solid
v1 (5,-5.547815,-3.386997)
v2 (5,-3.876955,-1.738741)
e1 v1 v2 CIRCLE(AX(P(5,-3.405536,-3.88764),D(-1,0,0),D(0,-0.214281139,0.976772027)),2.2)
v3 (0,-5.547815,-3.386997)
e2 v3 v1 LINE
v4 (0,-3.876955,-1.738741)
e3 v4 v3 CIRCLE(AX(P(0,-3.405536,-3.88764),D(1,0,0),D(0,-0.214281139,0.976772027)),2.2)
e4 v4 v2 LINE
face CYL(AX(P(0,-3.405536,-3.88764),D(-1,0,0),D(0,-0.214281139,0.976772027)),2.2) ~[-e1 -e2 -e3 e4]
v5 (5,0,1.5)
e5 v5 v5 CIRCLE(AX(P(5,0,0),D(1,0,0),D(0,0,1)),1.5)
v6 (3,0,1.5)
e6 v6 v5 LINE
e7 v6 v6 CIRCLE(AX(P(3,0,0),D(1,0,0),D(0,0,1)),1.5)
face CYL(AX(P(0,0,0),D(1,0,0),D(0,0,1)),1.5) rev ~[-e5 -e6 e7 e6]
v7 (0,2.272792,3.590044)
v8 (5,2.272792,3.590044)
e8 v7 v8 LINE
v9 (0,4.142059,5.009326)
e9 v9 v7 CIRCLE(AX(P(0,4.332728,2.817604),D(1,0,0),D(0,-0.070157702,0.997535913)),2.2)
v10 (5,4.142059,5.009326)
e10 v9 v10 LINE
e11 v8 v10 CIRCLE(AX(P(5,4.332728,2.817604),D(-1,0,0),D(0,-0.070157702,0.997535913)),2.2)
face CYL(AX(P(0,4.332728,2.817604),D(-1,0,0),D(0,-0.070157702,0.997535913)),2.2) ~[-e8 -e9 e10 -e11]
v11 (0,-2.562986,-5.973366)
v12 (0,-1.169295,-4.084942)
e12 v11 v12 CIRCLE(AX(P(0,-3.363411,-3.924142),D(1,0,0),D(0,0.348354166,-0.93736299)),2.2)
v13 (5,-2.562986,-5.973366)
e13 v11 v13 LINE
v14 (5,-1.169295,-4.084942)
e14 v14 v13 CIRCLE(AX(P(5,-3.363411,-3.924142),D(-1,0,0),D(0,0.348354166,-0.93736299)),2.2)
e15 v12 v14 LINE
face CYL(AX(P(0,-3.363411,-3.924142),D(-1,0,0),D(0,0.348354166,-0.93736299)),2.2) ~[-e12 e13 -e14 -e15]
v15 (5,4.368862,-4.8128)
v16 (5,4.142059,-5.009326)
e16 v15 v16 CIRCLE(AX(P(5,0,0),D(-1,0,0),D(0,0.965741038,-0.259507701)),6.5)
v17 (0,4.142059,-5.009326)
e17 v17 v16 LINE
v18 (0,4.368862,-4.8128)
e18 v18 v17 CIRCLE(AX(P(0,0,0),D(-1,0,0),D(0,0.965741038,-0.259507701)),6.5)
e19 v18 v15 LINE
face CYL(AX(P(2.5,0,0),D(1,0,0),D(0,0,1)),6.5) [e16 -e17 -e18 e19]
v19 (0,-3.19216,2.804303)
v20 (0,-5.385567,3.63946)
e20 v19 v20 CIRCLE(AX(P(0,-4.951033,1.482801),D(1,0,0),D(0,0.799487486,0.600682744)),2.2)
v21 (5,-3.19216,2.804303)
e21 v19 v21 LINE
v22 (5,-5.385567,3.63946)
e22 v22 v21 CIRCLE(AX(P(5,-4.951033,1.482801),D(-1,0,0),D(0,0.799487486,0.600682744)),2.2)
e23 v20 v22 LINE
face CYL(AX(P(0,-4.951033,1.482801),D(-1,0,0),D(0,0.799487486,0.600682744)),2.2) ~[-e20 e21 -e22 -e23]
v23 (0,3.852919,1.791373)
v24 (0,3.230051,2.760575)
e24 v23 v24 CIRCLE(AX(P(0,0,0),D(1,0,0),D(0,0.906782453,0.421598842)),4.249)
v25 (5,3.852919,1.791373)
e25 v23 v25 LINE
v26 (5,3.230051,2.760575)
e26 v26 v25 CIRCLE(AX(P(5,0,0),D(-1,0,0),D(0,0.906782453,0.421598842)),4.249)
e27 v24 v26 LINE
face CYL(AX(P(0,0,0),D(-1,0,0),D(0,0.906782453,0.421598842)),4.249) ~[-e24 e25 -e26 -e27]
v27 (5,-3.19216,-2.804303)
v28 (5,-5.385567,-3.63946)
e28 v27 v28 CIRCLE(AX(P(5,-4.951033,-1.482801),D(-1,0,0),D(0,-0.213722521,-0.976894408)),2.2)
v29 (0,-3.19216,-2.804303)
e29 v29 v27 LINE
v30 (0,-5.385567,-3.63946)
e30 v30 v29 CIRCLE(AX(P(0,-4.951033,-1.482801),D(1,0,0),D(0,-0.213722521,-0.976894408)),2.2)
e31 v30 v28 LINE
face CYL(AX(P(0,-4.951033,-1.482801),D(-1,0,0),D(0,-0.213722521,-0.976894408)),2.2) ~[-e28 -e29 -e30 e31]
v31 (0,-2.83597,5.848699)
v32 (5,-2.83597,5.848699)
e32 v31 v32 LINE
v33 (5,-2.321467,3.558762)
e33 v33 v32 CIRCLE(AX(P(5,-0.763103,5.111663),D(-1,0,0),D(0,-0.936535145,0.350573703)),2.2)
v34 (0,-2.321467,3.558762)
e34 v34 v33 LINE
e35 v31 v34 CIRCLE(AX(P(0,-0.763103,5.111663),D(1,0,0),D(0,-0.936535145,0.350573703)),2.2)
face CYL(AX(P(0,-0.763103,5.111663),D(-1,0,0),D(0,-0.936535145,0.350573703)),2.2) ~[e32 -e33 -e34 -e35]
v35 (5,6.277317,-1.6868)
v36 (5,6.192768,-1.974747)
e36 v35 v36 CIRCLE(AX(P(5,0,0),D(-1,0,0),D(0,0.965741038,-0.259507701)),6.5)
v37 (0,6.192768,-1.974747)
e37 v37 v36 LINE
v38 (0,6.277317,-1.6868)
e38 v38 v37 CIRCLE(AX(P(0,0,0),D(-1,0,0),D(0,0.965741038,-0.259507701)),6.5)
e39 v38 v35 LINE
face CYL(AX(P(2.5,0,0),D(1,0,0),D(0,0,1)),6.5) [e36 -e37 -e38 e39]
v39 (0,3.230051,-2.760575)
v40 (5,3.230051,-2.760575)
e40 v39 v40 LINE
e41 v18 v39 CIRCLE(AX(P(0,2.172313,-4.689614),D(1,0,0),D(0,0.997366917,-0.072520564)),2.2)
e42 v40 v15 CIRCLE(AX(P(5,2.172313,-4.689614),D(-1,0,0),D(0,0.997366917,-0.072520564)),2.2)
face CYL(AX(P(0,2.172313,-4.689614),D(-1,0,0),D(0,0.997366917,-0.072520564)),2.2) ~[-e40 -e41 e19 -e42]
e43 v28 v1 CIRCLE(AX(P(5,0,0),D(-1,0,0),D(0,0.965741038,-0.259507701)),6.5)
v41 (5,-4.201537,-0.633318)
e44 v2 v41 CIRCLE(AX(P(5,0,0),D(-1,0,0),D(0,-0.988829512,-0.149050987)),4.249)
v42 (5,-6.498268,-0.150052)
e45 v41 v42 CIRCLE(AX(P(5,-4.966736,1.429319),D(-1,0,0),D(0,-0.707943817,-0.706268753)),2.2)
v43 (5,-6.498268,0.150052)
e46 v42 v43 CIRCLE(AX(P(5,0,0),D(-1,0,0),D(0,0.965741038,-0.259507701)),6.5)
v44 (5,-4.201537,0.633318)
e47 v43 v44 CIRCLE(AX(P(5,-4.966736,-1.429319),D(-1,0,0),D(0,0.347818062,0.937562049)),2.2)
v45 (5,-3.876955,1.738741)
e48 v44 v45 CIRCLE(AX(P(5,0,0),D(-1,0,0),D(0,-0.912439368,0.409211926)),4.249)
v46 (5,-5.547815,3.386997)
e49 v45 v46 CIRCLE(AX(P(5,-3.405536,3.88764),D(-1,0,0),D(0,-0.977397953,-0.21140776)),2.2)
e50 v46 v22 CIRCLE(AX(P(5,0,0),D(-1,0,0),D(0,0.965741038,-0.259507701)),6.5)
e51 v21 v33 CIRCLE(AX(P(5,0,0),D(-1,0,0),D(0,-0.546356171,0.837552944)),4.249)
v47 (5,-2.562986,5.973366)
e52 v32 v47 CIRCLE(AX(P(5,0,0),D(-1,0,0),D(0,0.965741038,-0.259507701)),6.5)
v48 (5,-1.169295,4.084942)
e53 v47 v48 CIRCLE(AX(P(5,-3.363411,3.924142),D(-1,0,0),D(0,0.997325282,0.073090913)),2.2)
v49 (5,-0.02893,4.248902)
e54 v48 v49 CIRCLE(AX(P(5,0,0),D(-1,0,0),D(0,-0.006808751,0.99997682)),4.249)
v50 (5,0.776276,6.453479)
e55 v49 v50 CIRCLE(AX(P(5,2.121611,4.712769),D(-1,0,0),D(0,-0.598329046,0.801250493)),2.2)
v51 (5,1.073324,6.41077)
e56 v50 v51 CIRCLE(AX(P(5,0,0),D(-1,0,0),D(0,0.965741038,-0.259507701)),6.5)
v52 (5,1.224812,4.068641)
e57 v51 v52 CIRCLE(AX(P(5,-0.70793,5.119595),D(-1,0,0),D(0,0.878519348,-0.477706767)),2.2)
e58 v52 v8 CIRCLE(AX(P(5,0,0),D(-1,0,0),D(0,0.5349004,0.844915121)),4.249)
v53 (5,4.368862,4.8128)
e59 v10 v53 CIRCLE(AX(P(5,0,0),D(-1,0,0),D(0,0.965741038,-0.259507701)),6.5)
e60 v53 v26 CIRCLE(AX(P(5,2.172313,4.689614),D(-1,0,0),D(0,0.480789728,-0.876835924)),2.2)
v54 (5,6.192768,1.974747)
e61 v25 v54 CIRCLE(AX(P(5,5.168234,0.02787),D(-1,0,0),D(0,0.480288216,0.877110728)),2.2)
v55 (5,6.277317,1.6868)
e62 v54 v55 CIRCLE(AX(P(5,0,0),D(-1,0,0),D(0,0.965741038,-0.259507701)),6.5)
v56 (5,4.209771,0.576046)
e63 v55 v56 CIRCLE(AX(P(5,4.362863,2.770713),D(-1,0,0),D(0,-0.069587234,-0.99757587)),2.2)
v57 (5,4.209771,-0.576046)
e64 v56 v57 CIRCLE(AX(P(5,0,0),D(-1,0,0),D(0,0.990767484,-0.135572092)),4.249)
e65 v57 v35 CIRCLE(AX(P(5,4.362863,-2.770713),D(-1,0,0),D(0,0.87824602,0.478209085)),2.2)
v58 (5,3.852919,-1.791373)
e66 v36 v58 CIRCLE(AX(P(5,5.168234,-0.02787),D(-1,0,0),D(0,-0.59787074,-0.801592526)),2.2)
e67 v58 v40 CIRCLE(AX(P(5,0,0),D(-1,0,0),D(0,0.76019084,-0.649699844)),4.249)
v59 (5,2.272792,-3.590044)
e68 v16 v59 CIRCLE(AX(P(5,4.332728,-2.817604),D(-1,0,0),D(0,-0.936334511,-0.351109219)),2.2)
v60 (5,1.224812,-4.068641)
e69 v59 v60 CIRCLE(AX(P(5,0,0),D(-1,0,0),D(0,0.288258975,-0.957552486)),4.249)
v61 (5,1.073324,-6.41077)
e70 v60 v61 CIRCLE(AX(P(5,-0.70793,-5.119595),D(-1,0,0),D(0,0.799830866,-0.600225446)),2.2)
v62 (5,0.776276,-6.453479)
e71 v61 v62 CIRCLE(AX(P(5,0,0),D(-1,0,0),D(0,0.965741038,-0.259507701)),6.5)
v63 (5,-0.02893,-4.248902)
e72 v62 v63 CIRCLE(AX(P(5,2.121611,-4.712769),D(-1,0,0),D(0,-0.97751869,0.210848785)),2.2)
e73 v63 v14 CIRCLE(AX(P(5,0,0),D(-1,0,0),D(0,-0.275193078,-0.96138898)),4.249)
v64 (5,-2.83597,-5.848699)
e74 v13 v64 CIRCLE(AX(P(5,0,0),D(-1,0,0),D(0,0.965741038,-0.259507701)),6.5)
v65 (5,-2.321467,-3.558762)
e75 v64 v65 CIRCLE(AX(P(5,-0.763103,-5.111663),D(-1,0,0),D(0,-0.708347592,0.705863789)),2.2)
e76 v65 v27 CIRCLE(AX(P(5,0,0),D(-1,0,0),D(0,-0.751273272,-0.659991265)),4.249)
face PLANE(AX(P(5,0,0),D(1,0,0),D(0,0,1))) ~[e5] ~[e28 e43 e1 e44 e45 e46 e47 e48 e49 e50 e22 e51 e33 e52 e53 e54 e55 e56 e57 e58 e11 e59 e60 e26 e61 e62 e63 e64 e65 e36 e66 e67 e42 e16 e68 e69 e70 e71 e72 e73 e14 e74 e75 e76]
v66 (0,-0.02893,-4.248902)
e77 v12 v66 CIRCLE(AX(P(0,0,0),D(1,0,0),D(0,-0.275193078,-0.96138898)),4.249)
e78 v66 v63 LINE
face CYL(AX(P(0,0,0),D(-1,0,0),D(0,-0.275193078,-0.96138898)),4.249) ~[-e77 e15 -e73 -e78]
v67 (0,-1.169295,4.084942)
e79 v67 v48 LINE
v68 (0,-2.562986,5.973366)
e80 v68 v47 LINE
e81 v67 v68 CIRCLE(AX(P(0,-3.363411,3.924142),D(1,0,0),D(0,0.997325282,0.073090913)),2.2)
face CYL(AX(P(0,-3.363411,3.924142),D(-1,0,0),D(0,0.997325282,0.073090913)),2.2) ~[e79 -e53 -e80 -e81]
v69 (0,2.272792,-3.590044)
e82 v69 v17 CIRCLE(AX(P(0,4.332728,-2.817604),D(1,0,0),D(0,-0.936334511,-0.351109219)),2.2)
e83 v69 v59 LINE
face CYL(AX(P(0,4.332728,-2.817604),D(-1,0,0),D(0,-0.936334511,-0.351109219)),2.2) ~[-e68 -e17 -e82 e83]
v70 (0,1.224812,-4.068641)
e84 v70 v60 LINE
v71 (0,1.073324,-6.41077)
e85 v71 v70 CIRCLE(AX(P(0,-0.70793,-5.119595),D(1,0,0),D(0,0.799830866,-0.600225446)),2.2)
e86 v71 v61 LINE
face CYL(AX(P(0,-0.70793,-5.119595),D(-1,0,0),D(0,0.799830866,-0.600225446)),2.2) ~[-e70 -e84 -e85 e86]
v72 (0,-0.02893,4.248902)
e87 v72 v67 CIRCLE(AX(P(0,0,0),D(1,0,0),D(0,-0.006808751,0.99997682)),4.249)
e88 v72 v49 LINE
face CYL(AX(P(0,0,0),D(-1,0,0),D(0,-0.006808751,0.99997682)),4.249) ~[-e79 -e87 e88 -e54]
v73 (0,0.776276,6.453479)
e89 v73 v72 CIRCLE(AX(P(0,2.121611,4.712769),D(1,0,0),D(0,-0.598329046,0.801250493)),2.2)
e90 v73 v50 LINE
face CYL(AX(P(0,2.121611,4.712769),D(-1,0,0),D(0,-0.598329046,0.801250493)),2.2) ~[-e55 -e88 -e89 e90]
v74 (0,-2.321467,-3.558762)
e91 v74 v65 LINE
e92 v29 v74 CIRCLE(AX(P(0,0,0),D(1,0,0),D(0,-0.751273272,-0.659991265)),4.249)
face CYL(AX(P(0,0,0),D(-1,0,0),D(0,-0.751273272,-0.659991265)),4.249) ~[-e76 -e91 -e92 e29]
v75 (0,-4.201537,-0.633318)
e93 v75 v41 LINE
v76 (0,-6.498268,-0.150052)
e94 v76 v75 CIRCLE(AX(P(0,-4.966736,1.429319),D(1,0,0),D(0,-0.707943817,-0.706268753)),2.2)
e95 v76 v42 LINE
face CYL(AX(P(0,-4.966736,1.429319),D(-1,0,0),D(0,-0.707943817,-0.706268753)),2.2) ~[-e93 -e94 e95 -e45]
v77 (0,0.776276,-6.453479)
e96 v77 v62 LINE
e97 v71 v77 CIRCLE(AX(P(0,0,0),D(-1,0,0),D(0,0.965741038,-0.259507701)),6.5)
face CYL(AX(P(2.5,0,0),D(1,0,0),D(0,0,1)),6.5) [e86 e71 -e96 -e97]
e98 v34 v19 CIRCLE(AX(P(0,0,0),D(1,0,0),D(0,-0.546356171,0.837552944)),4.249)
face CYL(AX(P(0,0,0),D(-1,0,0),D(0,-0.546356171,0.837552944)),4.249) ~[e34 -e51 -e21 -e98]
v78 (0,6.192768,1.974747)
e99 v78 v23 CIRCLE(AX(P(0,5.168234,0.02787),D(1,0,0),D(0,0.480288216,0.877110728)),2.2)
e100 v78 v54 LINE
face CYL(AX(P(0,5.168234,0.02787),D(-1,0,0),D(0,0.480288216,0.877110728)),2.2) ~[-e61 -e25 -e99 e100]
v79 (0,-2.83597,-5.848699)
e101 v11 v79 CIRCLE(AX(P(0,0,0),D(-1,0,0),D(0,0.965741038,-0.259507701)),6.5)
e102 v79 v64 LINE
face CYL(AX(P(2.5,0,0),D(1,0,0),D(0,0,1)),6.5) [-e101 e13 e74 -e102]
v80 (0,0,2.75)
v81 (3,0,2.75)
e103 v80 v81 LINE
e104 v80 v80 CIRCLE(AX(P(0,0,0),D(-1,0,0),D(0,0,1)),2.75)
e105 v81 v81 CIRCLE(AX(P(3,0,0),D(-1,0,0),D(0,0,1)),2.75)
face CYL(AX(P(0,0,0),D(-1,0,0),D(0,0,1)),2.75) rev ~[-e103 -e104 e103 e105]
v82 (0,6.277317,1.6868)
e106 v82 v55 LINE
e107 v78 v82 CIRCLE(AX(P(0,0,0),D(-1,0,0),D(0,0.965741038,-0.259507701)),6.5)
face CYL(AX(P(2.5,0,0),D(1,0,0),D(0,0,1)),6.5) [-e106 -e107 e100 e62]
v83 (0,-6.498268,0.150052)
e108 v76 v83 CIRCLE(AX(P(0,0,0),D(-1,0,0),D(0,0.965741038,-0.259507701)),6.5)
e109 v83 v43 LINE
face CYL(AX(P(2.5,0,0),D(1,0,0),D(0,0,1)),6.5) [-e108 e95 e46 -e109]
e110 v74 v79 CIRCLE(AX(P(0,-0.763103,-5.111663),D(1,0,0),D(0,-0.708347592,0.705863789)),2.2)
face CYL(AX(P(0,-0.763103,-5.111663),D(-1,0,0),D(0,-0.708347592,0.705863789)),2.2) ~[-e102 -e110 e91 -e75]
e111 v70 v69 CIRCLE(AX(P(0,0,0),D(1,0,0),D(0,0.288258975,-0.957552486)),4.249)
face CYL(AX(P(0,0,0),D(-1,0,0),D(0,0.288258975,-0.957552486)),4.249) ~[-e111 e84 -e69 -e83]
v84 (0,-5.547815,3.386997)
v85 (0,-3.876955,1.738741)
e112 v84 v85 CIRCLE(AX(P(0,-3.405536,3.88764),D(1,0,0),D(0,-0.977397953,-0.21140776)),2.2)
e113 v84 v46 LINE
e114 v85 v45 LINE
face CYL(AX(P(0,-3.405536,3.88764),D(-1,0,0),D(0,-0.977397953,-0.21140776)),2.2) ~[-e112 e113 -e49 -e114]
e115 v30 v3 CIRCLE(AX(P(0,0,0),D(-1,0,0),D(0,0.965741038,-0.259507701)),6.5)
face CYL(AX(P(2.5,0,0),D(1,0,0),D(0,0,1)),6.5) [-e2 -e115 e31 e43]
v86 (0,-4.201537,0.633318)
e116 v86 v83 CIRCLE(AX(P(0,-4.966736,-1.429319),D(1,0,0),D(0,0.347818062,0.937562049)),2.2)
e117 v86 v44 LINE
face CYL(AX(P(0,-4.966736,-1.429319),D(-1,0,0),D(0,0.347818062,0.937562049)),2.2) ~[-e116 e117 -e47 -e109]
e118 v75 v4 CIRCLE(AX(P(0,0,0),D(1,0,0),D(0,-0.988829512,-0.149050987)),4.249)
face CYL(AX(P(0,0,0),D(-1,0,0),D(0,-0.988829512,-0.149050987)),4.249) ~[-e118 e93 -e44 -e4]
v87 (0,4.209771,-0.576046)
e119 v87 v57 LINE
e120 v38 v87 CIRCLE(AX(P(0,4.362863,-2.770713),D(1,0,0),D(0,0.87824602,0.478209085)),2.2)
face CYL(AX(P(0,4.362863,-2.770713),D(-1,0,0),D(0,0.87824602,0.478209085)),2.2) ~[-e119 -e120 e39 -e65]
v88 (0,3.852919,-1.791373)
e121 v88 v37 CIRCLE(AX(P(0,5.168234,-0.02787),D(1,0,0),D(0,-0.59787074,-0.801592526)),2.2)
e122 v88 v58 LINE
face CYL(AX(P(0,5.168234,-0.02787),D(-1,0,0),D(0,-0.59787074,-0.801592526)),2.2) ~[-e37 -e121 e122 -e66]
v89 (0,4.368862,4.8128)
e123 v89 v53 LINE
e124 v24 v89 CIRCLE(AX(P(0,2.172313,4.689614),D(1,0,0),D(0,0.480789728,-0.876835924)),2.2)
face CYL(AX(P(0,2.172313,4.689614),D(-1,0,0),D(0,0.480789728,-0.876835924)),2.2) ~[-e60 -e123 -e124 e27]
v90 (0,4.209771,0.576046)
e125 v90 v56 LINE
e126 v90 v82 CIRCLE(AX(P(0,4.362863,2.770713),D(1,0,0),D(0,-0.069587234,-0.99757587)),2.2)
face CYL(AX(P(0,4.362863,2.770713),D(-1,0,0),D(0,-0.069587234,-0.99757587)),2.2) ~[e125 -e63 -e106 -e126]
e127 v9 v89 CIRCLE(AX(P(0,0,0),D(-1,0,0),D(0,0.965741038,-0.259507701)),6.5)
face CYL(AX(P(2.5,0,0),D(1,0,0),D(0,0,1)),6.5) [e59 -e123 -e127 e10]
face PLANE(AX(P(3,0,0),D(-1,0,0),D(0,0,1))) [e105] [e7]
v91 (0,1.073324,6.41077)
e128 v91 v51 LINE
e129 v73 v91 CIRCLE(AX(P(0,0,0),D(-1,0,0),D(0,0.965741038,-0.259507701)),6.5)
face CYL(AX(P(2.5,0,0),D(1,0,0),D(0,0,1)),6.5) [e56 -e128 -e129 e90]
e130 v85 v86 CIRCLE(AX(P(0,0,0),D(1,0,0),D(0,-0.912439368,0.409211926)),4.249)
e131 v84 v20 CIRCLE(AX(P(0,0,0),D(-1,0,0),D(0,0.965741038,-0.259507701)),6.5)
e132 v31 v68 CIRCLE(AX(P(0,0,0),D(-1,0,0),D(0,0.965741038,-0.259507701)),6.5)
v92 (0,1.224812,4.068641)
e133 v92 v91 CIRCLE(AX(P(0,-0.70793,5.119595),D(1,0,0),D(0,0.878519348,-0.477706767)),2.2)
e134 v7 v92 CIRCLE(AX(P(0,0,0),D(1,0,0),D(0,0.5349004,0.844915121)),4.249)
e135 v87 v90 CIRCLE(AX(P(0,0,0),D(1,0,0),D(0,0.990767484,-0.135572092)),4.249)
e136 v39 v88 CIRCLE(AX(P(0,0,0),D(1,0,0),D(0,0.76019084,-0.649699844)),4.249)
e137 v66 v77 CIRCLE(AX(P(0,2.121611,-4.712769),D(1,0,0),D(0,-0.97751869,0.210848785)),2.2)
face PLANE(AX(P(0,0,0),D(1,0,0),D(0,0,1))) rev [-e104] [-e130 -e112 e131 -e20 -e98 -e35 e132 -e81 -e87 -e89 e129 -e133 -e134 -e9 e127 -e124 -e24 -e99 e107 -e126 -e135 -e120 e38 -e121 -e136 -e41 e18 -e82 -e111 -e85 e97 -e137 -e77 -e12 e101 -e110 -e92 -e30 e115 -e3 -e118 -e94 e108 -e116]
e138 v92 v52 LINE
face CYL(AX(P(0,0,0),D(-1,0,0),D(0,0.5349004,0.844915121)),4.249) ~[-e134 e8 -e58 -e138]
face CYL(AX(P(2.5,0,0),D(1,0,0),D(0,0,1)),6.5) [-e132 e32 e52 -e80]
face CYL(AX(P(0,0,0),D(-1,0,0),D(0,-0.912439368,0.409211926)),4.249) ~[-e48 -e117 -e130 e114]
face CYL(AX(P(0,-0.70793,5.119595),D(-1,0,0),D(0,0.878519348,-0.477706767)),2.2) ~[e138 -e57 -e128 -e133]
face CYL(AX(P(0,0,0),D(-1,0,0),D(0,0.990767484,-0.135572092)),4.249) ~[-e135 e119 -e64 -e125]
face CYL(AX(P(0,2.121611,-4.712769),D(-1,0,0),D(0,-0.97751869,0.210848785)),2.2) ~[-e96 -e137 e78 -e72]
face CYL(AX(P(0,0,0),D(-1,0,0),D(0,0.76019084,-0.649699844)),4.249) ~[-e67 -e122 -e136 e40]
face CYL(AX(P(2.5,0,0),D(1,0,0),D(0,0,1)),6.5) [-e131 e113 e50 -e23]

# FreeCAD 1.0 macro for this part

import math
import FreeCAD as App
import Part
import Sketcher
from FreeCAD import Vector
Q = App.Units.Quantity


def add_polygon(sketch, points):
    """Adds a closed chain of lines whose ends are joined by coincident constraints."""
    first, n = sketch.GeometryCount, len(points)
    for a, b in zip(points, points[1:] + points[:1]):
        sketch.addGeometry(Part.LineSegment(App.Vector(*a, 0), App.Vector(*b, 0)), False)
    for i in range(n):
        sketch.addConstraint(Sketcher.Constraint("Coincident", first + i, 2, first + (i + 1) % n, 1))

doc = App.newDocument("Part")
body = doc.addObject("PartDesign::Body", "Body")

# Sketch on XZ plane
sketch1 = body.newObject("Sketcher::SketchObject", "Sketch")
sketch1.AttachmentSupport = (doc.getObject("XZ_Plane"), [""])
sketch1.MapMode = "FlatFace"
add_polygon(sketch1, [(0, -6), (0, 0), (5, 0), (5, -6)])  # lines 0-3
sketch1.addConstraint([
    Sketcher.Constraint("Vertical", 0),
    Sketcher.Constraint("Horizontal", 1),
    Sketcher.Constraint("Vertical", 2),
    Sketcher.Constraint("Horizontal", 3),
    Sketcher.Constraint("Coincident", 0, 2, -1, 1),
    Sketcher.Constraint("DistanceX", 1, 1, 1, 2, Q("5 mm")),
    Sketcher.Constraint("DistanceY", 0, 1, 0, 2, Q("6.5 mm")),
])
revolution = body.newObject("PartDesign::Revolution", "Revolution")
revolution.Profile = sketch1
revolution.ReferenceAxis = (sketch1, ["H_Axis"])
revolution.Angle = 360

# Sketch on YZ plane
sketch2 = body.newObject("Sketcher::SketchObject", "Sketch001")
sketch2.AttachmentSupport = (doc.getObject("YZ_Plane"), [""])
sketch2.MapMode = "FlatFace"
sketch2.addGeometry([
    Part.ArcOfCircle(Part.Circle(Vector(0, 0, 0), Vector(0, 0, 1), 4.2), math.radians(-7.79), math.radians(7.79)),
    Part.ArcOfCircle(Part.Circle(Vector(4.4, -2.8, 0), Vector(0, 0, 1), 2.2), math.radians(29), math.radians(94)),
    Part.ArcOfCircle(Part.Circle(Vector(0, 0, 0), Vector(0, 0, 1), 6.5), math.radians(-15), math.radians(15)),
    Part.ArcOfCircle(Part.Circle(Vector(4.4, 2.8, 0), Vector(0, 0, 1), 2.2), math.radians(-94), math.radians(-29)),
], False)
sketch2.addConstraint([
    Sketcher.Constraint("Coincident", 0, 1, 1, 2),
    Sketcher.Constraint("Coincident", 1, 1, 2, 1),
    Sketcher.Constraint("Coincident", 2, 2, 3, 2),
    Sketcher.Constraint("Coincident", 3, 1, 0, 2),
    Sketcher.Constraint("Coincident", 0, 3, -1, 1),
    Sketcher.Constraint("Coincident", 2, 3, -1, 1),
    Sketcher.Constraint("Equal", 1, 3),
    Sketcher.Constraint("Symmetric", 1, 3, 3, 3, -1),
    Sketcher.Constraint("Radius", 1, Q("2.2 mm")),
    Sketcher.Constraint("Radius", 0, Q("4.249 mm")),
    Sketcher.Constraint("Radius", 2, Q("6.5254 mm")),
    Sketcher.Constraint("DistanceY", 0, 1, 2, 2, Q("2.294699 mm")),
    Sketcher.Constraint("DistanceX", -1, 1, 0, 1, Q("4.209771 mm")),
])
pocket1 = body.newObject("PartDesign::Pocket", "Pocket")
pocket1.Profile = sketch2
pocket1.Type = "ThroughAll"
pocket1.Reversed = True
doc.recompute()

polarpattern = body.newObject("PartDesign::PolarPattern", "PolarPattern")
polarpattern.Originals = [pocket1]
polarpattern.Axis = (doc.getObject("X_Axis"), [""])
polarpattern.Angle = 360
polarpattern.Occurrences = 11
body.Tip = polarpattern

# Sketch on YZ plane
sketch3 = body.newObject("Sketcher::SketchObject", "Sketch002")
sketch3.AttachmentSupport = (doc.getObject("YZ_Plane"), [""])
sketch3.MapMode = "FlatFace"
sketch3.addGeometry(Part.Circle(Vector(0, 0, 0), Vector(0, 0, 1), 1.5), False)
sketch3.addConstraint([
    Sketcher.Constraint("Coincident", 0, 3, -1, 1),
    Sketcher.Constraint("Diameter", 0, Q("3 mm")),
])
pocket2 = body.newObject("PartDesign::Pocket", "Pocket001")
pocket2.Profile = sketch3
pocket2.Length = 100.000102
pocket2.Midplane = True

# Sketch on YZ plane
sketch4 = body.newObject("Sketcher::SketchObject", "Sketch003")
sketch4.AttachmentSupport = (doc.getObject("YZ_Plane"), [""])
sketch4.MapMode = "FlatFace"
sketch4.addGeometry(Part.Circle(Vector(0, 0, 0), Vector(0, 0, 1), 2.8), False)
sketch4.addConstraint([
    Sketcher.Constraint("Coincident", 0, 3, -1, 1),
    Sketcher.Constraint("Diameter", 0, Q("5.5 mm")),
])
pocket3 = body.newObject("PartDesign::Pocket", "Pocket002")
pocket3.Profile = sketch4
pocket3.Length = 3
pocket3.Reversed = True

doc.recompute()
